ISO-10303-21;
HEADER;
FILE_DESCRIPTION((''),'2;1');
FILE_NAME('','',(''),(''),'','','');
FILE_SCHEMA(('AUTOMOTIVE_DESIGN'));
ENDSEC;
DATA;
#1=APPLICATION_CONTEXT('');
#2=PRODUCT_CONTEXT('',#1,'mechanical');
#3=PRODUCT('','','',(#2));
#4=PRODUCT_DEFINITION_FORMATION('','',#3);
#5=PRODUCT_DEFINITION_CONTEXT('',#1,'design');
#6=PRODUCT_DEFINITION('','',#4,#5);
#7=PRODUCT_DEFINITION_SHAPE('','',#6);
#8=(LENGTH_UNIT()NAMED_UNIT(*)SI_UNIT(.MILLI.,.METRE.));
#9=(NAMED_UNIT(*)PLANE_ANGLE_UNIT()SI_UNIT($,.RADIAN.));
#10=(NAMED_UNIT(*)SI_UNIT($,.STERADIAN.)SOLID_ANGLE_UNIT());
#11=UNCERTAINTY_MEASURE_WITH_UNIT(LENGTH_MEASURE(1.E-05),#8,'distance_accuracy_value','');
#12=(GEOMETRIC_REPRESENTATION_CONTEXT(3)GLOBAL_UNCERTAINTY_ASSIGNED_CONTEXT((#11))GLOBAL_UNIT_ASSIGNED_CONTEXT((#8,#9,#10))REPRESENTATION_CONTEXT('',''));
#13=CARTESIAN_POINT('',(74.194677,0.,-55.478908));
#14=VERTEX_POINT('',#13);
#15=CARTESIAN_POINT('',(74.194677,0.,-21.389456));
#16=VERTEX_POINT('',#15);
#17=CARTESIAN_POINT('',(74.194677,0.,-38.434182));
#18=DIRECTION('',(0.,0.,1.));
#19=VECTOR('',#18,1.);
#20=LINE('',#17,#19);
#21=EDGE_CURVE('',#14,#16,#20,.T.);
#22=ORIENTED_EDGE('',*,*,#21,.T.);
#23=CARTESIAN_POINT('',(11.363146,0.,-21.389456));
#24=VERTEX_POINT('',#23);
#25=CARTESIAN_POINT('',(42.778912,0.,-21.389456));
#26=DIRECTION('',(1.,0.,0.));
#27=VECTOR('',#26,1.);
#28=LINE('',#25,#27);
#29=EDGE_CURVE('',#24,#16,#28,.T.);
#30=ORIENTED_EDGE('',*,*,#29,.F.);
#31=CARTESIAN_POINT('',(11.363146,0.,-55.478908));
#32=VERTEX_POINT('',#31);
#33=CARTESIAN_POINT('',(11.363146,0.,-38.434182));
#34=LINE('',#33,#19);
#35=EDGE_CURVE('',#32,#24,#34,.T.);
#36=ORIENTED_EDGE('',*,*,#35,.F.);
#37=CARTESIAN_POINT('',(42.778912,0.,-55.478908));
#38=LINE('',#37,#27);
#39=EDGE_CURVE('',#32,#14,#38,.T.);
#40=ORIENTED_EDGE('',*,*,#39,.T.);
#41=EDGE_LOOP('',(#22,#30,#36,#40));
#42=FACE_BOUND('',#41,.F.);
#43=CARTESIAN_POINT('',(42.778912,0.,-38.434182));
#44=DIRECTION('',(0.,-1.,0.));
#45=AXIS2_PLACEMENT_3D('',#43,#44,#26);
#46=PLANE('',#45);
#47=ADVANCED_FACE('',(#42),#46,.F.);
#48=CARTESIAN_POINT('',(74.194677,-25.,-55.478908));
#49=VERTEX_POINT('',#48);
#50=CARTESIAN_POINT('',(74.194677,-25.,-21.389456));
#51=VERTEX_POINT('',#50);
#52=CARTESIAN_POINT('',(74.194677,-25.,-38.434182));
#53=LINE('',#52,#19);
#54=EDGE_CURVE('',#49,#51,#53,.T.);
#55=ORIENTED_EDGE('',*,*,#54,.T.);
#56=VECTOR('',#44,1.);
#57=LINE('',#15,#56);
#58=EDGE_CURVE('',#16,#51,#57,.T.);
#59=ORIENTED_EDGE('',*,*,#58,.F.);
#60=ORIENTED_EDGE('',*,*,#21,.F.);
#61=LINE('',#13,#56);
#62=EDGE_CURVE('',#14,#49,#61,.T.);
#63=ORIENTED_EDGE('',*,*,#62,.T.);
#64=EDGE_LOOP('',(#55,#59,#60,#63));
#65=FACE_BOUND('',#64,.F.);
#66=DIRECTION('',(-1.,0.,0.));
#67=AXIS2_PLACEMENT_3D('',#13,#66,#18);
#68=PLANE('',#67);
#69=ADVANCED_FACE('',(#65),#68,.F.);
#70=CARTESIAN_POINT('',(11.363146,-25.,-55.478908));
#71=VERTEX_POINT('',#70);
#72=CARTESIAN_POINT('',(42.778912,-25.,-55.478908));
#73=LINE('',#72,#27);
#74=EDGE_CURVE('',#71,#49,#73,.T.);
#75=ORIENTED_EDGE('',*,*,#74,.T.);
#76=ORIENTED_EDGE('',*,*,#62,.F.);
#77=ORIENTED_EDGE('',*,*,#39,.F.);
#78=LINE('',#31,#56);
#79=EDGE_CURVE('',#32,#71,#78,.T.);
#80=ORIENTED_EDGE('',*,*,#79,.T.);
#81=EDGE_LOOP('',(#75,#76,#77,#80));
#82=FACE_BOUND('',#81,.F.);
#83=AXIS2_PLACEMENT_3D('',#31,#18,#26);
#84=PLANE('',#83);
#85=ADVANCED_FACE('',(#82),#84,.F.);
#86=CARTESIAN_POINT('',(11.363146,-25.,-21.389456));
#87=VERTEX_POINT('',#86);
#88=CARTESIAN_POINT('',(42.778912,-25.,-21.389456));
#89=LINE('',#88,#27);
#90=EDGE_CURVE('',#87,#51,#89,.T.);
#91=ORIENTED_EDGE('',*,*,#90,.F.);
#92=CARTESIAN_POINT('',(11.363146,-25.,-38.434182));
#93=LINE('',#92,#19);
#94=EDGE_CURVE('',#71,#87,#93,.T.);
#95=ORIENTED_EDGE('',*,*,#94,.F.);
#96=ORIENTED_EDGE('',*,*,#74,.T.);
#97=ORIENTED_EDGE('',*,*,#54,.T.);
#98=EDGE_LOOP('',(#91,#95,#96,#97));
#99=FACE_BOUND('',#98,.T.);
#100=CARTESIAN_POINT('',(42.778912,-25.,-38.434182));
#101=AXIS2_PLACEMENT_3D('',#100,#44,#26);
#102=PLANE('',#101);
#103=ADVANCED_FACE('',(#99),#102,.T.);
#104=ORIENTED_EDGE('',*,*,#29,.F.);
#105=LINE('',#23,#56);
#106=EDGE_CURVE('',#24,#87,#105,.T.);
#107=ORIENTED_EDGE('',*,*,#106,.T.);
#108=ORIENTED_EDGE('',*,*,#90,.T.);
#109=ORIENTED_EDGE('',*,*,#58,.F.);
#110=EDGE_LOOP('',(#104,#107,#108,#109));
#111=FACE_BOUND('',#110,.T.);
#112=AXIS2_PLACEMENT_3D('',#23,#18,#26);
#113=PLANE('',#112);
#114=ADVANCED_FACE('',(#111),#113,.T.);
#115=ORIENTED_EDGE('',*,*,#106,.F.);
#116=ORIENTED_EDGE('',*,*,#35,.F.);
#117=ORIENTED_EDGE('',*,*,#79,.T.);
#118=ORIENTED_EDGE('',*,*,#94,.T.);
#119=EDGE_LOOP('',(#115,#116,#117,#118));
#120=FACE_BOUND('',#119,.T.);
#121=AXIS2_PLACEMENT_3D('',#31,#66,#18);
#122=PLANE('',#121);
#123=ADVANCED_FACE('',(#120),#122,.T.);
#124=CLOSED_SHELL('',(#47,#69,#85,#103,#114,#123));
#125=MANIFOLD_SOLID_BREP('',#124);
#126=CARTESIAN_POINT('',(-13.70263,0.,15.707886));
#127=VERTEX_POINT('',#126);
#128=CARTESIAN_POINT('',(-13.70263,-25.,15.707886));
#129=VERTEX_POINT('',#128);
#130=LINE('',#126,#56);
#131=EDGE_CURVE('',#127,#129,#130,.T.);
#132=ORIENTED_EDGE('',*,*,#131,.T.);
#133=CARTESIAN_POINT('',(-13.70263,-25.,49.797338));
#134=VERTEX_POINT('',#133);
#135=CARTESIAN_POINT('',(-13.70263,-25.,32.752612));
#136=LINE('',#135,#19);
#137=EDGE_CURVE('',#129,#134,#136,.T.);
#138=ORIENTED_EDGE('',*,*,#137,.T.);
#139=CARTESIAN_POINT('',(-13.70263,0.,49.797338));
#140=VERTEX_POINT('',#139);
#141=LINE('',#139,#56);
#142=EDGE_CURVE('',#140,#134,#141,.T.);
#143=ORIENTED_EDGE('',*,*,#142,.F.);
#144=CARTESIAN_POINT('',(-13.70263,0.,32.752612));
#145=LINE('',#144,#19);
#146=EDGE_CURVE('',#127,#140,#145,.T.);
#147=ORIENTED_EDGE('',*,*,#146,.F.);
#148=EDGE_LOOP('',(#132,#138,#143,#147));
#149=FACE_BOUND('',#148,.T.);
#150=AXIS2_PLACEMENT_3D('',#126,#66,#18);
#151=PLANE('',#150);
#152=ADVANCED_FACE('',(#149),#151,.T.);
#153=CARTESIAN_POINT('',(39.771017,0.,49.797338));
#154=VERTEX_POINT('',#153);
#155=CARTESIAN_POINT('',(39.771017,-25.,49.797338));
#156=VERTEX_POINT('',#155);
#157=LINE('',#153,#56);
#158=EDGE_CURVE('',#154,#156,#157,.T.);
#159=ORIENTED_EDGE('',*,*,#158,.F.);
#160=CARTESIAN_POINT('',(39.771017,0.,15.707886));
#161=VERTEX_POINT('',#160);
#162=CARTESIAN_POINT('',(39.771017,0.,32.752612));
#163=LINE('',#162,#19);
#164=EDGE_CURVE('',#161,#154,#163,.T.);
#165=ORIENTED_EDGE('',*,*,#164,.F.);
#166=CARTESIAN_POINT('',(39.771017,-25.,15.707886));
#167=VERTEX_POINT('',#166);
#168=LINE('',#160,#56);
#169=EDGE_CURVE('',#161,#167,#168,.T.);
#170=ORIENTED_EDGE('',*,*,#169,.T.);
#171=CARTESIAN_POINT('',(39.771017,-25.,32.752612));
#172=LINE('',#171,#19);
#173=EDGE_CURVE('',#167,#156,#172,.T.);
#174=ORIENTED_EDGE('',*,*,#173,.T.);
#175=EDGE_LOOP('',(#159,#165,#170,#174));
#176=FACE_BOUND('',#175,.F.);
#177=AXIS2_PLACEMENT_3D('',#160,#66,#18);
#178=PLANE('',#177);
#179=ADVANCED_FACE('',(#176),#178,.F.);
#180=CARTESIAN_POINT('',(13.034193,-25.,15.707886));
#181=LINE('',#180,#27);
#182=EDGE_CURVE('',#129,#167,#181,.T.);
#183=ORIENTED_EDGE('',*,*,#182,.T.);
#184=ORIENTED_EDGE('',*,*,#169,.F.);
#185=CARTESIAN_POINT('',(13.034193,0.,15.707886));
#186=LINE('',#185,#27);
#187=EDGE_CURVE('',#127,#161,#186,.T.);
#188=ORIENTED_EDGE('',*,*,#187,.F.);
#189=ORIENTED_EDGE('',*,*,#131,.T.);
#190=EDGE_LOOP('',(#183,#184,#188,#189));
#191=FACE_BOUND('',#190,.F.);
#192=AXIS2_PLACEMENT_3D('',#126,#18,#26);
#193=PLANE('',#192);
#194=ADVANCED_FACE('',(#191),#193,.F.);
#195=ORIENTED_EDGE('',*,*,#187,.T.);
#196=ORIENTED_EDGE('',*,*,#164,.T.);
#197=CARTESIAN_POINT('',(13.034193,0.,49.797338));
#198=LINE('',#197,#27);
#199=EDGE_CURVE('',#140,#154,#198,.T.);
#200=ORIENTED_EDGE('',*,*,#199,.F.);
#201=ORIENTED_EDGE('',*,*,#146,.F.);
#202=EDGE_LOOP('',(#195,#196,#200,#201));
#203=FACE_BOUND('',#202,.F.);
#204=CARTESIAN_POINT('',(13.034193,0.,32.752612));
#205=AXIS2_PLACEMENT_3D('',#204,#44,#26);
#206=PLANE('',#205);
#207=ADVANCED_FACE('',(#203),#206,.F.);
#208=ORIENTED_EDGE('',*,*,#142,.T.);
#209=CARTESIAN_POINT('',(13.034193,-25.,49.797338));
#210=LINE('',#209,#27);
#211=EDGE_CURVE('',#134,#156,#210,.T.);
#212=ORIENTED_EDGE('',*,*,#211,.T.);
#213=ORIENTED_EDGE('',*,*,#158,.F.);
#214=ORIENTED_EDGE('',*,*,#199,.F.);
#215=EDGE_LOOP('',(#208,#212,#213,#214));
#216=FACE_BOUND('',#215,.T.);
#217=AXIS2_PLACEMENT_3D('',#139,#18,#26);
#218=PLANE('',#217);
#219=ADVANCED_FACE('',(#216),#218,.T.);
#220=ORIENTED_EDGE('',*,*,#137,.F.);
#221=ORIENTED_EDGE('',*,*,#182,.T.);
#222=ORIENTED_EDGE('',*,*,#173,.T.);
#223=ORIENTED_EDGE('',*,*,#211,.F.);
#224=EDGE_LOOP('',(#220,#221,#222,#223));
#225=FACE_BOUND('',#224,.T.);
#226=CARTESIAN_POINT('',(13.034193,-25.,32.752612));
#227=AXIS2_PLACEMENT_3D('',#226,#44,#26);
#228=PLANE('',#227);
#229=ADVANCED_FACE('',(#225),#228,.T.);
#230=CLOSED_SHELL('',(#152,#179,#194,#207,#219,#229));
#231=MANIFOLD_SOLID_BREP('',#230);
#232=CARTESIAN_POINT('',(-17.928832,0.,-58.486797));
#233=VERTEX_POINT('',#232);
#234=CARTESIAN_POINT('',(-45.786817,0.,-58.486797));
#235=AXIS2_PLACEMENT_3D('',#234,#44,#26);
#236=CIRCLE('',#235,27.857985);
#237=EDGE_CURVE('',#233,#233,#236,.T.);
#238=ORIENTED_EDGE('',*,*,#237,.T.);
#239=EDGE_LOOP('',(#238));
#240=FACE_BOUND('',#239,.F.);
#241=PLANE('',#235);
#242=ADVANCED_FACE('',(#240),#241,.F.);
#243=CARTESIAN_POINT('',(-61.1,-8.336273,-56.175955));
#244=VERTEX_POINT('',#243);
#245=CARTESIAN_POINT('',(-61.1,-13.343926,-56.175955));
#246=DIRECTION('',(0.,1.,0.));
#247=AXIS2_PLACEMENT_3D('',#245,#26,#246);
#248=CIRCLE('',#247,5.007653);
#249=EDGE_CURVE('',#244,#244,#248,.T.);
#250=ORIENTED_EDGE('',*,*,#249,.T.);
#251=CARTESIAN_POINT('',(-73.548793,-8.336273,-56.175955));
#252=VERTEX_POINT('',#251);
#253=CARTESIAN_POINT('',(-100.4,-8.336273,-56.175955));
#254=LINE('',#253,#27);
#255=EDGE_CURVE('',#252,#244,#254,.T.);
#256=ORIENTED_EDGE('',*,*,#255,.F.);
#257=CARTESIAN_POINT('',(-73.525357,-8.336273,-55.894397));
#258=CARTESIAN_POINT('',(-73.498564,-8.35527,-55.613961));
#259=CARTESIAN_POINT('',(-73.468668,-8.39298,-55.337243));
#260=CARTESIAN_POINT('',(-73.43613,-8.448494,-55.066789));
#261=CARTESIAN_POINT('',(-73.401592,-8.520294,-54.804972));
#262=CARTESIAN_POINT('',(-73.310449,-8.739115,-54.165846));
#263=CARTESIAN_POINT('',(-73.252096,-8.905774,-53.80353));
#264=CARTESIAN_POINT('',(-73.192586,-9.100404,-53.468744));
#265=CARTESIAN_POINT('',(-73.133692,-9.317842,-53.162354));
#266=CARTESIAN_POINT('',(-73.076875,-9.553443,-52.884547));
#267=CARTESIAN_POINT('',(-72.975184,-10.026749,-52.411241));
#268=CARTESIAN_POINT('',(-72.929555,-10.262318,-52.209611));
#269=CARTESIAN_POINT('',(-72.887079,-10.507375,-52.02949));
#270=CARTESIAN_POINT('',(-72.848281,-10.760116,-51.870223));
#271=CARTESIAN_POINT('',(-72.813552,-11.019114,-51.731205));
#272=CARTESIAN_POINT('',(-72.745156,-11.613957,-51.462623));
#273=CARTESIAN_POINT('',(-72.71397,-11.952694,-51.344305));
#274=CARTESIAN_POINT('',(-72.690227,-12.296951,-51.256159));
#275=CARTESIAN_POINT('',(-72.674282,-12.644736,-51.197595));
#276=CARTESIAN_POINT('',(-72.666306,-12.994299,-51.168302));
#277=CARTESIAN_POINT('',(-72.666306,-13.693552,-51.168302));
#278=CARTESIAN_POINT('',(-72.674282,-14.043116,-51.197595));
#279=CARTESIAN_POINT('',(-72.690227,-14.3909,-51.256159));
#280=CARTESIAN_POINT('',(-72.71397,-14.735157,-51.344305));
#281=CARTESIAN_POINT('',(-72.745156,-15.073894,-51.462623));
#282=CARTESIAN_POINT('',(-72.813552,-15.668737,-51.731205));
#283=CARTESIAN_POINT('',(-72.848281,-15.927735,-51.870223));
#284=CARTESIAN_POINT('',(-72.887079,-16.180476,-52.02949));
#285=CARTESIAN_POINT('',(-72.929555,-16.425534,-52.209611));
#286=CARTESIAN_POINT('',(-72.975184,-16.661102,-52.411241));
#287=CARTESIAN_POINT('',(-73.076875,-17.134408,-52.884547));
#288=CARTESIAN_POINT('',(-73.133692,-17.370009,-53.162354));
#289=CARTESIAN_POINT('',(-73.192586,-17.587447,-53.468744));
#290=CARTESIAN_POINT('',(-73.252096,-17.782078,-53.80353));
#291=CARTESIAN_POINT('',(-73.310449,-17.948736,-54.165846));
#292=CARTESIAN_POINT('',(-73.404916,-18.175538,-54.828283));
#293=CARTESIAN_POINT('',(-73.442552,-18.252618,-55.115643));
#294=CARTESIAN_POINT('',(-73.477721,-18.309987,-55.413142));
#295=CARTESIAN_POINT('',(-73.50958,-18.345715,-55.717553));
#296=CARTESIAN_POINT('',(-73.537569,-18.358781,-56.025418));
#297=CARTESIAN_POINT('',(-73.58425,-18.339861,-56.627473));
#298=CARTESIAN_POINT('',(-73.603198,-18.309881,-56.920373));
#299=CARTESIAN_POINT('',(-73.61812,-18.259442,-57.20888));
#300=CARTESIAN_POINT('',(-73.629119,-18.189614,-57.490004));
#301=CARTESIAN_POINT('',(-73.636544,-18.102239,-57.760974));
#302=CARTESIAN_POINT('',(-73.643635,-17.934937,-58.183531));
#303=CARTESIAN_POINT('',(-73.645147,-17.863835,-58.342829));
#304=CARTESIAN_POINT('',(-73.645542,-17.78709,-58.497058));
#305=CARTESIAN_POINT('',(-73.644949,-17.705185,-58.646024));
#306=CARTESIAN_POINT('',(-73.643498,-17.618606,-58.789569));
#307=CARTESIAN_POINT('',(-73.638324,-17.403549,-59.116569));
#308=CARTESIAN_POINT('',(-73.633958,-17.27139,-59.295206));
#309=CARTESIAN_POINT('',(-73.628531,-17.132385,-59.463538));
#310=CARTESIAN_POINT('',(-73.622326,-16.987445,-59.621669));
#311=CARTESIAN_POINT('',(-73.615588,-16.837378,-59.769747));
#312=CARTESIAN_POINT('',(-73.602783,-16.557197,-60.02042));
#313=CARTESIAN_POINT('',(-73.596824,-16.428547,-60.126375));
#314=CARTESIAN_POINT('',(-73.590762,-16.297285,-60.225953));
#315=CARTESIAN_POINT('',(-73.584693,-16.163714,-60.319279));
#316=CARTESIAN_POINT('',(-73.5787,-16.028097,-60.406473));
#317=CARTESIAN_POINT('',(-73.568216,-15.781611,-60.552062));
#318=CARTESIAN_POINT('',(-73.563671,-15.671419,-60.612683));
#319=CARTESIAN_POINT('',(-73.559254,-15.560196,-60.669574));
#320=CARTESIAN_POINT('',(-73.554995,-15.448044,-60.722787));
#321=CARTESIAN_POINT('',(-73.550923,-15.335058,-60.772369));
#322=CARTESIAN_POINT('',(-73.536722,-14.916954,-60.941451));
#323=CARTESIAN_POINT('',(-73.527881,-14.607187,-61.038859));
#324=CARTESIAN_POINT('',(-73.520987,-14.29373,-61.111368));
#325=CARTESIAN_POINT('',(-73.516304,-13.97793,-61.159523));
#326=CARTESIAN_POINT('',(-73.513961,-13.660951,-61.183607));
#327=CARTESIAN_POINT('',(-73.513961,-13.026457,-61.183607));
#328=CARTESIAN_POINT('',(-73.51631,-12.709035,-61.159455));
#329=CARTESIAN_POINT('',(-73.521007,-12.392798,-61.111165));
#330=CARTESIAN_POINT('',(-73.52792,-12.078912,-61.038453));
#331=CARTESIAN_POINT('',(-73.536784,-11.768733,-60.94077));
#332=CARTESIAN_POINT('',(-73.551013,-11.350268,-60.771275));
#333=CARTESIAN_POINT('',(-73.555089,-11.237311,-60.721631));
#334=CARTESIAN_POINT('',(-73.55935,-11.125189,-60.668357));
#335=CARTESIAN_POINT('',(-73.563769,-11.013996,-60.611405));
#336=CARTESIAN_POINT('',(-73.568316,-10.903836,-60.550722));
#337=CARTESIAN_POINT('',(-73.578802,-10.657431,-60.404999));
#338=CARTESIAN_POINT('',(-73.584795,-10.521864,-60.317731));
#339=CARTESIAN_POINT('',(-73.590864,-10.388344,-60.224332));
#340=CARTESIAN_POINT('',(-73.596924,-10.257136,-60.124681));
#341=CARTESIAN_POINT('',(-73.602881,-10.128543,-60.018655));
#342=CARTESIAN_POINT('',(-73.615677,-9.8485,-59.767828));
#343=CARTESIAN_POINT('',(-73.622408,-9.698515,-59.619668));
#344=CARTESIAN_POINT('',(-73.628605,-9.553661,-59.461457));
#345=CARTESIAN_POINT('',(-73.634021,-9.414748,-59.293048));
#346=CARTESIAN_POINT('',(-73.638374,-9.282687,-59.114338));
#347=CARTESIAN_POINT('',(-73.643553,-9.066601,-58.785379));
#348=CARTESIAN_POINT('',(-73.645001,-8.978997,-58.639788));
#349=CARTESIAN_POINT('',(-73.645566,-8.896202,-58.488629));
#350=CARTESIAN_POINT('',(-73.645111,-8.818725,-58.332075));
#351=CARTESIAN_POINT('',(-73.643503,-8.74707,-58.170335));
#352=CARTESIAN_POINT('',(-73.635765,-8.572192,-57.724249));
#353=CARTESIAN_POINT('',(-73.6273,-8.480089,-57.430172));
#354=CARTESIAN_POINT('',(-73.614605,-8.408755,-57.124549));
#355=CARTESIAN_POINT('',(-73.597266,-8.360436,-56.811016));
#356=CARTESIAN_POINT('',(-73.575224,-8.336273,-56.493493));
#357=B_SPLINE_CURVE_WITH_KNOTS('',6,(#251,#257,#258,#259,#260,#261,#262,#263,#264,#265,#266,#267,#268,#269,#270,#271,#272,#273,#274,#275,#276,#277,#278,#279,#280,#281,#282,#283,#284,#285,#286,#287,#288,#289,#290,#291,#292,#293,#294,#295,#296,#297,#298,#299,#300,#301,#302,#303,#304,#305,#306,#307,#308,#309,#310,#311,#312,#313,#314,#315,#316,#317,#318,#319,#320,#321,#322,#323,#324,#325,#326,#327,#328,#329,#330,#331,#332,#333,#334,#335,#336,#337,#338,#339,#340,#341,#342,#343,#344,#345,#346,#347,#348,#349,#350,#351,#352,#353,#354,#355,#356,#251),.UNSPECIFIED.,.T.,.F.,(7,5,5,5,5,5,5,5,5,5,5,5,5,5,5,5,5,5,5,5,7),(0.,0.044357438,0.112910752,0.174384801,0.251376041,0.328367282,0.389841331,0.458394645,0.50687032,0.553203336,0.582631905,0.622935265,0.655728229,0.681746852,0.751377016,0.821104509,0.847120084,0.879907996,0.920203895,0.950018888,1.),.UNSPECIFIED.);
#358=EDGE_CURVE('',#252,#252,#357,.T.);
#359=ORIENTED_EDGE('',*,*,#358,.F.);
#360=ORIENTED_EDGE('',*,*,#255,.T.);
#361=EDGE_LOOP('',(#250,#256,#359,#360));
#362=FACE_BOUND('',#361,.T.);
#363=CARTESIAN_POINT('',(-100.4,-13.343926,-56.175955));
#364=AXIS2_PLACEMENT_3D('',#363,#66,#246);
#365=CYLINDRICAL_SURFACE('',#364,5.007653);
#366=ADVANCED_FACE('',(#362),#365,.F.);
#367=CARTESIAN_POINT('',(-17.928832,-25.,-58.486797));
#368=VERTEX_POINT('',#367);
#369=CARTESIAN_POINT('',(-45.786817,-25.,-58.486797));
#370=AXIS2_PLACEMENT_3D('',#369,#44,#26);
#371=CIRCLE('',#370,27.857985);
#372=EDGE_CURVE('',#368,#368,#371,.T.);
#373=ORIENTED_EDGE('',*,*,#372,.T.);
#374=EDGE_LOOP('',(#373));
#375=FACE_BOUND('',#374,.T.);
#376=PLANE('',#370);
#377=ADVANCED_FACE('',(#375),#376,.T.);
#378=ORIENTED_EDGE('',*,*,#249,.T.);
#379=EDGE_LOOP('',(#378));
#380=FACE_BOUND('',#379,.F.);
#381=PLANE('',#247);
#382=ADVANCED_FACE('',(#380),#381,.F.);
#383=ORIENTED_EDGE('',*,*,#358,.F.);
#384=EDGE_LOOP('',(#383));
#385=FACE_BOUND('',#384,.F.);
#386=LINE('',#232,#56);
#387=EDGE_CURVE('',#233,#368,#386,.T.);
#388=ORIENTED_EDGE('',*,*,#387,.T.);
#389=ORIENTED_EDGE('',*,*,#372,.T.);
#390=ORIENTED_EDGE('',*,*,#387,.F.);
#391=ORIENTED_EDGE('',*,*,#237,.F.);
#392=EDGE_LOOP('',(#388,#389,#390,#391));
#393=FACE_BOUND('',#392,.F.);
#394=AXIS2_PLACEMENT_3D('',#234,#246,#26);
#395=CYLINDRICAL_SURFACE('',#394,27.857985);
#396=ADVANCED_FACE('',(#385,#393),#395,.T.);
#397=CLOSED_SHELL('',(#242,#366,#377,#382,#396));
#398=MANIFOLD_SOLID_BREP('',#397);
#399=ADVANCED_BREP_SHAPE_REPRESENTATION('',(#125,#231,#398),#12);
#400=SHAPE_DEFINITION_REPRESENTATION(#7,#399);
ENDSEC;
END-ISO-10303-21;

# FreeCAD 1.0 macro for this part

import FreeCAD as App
import Part
import Sketcher
Q = App.Units.Quantity


def add_polygon(sketch, points):
    """Adds a closed chain of lines whose ends are joined by coincident constraints."""
    first, n = sketch.GeometryCount, len(points)
    for a, b in zip(points, points[1:] + points[:1]):
        sketch.addGeometry(Part.LineSegment(App.Vector(*a, 0), App.Vector(*b, 0)), False)
    for i in range(n):
        sketch.addConstraint(Sketcher.Constraint("Coincident", first + i, 2, first + (i + 1) % n, 1))

doc = App.newDocument("Part")
body = doc.addObject("PartDesign::Body", "Body")

# Sketch on XZ plane
sketch1 = doc.addObject("Sketcher::SketchObject", "Sketch")
body.addObject(sketch1)
sketch1.AttachmentSupport = (doc.XZ_Plane, [""])
sketch1.MapMode = "FlatFace"
add_polygon(sketch1, [(-112, 40), (-112, -19), (-56, -19), (-56, 40)])  # lines 0-3
sketch1.addConstraint([
    Sketcher.Constraint("Vertical", 0),
    Sketcher.Constraint("Horizontal", 1),
    Sketcher.Constraint("Vertical", 2),
    Sketcher.Constraint("Horizontal", 3),
    Sketcher.Constraint("DistanceY", 0, 2, 0, 1, Q("58.486801 mm")),
    Sketcher.Constraint("DistanceX", 1, 1, 1, 2, Q("55.813119 mm")),
    Sketcher.Constraint("DistanceX", 0, 2, -1, 1, Q("111.626245 mm")),
    Sketcher.Constraint("DistanceY", 0, 2, -1, 1, Q("18.715773 mm")),
])
pad1 = doc.addObject("PartDesign::Pad", "Pad")
body.addObject(pad1)
pad1.Profile = sketch1
pad1.Length = 25
body2 = doc.addObject("PartDesign::Body", "Body001")

# Sketch on XZ plane
sketch2 = doc.addObject("Sketcher::SketchObject", "Sketch001")
body2.addObject(sketch2)
sketch2.AttachmentSupport = (doc.getObject("XZ_Plane001"), [""])
sketch2.MapMode = "FlatFace"
add_polygon(sketch2, [(11, -21), (11, -55), (74, -55), (74, -21)])  # lines 0-3
sketch2.addConstraint([
    Sketcher.Constraint("Vertical", 0),
    Sketcher.Constraint("Horizontal", 1),
    Sketcher.Constraint("Vertical", 2),
    Sketcher.Constraint("Horizontal", 3),
    Sketcher.Constraint("DistanceX", 1, 1, 1, 2, Q("62.831531 mm")),
    Sketcher.Constraint("DistanceY", 0, 2, 0, 1, Q("34.089452 mm")),
    Sketcher.Constraint("DistanceY", 0, 2, -1, 1, Q("55.478908 mm")),
    Sketcher.Constraint("DistanceX", -1, 1, 0, 2, Q("11.363146 mm")),
])
pad2 = doc.addObject("PartDesign::Pad", "Pad001")
body2.addObject(pad2)
pad2.Profile = sketch2
pad2.Length = 25
body3 = doc.addObject("PartDesign::Body", "Body002")

# Sketch on XZ plane
sketch3 = doc.addObject("Sketcher::SketchObject", "Sketch002")
body3.addObject(sketch3)
sketch3.AttachmentSupport = (doc.getObject("XZ_Plane002"), [""])
sketch3.MapMode = "FlatFace"
add_polygon(sketch3, [(-14, 50), (-14, 16), (40, 16), (40, 50)])  # lines 0-3
sketch3.addConstraint([
    Sketcher.Constraint("Vertical", 0),
    Sketcher.Constraint("Horizontal", 1),
    Sketcher.Constraint("Vertical", 2),
    Sketcher.Constraint("Horizontal", 3),
    Sketcher.Constraint("DistanceY", 0, 2, 0, 1, Q("34.089452 mm")),
    Sketcher.Constraint("DistanceX", 1, 1, 1, 2, Q("53.473647 mm")),
    Sketcher.Constraint("DistanceX", 0, 2, -1, 1, Q("13.70263 mm")),
    Sketcher.Constraint("DistanceY", -1, 1, 0, 2, Q("15.707886 mm")),
])
pad3 = doc.addObject("PartDesign::Pad", "Pad002")
body3.addObject(pad3)
pad3.Profile = sketch3
pad3.Length = 25
body4 = doc.addObject("PartDesign::Body", "Body003")

# Sketch on XZ plane
sketch4 = doc.addObject("Sketcher::SketchObject", "Sketch003")
body4.addObject(sketch4)
sketch4.AttachmentSupport = (doc.getObject("XZ_Plane003"), [""])
sketch4.MapMode = "FlatFace"
sketch4.addGeometry(Part.Circle(App.Vector(109, 39, 0), App.Vector(0, 0, 1), 20), False)
sketch4.addConstraint([
    Sketcher.Constraint("Diameter", 0, Q("39.078309 mm")),
    Sketcher.Constraint("DistanceX", -1, 1, 0, 3, Q("109.286755 mm")),
    Sketcher.Constraint("DistanceY", -1, 1, 0, 3, Q("38.768396 mm")),
])
pad4 = doc.addObject("PartDesign::Pad", "Pad003")
body4.addObject(pad4)
pad4.Profile = sketch4
pad4.Length = 25
body5 = doc.addObject("PartDesign::Body", "Body004")

# Sketch on XZ plane
sketch5 = doc.addObject("Sketcher::SketchObject", "Sketch004")
body5.addObject(sketch5)
sketch5.AttachmentSupport = (doc.getObject("XZ_Plane004"), [""])
sketch5.MapMode = "FlatFace"
sketch5.addGeometry(Part.Circle(App.Vector(-46, -58, 0), App.Vector(0, 0, 1), 28), False)
sketch5.addConstraint([
    Sketcher.Constraint("Diameter", 0, Q("55.71597 mm")),
    Sketcher.Constraint("DistanceX", 0, 3, -1, 1, Q("45.786817 mm")),
    Sketcher.Constraint("DistanceY", 0, 3, -1, 1, Q("58.486797 mm")),
])
pad5 = doc.addObject("PartDesign::Pad", "Pad004")
body5.addObject(pad5)
pad5.Profile = sketch5
pad5.Length = 25

# Sketch on YZ plane
sketch6 = doc.addObject("Sketcher::SketchObject", "Sketch005")
body5.addObject(sketch6)
sketch6.AttachmentSupport = (doc.getObject("YZ_Plane004"), [""])
sketch6.MapMode = "FlatFace"
sketch6.AttachmentOffset = App.Placement(App.Vector(0, 0, -100.4), App.Rotation())
sketch6.addGeometry(Part.Circle(App.Vector(-13, -56, 0), App.Vector(0, 0, 1), 5), False)
sketch6.addConstraint([
    Sketcher.Constraint("Diameter", 0, Q("10.015305 mm")),
    Sketcher.Constraint("DistanceX", 0, 3, -1, 1, Q("13.343926 mm")),
    Sketcher.Constraint("DistanceY", 0, 3, -1, 1, Q("56.175955 mm")),
])
pocket1 = doc.addObject("PartDesign::Pocket", "Pocket")
body5.addObject(pocket1)
pocket1.Profile = sketch6
pocket1.Length = 39.3
pocket1.Reversed = True
body.Visibility = False
body4.Visibility = False

doc.recompute()
